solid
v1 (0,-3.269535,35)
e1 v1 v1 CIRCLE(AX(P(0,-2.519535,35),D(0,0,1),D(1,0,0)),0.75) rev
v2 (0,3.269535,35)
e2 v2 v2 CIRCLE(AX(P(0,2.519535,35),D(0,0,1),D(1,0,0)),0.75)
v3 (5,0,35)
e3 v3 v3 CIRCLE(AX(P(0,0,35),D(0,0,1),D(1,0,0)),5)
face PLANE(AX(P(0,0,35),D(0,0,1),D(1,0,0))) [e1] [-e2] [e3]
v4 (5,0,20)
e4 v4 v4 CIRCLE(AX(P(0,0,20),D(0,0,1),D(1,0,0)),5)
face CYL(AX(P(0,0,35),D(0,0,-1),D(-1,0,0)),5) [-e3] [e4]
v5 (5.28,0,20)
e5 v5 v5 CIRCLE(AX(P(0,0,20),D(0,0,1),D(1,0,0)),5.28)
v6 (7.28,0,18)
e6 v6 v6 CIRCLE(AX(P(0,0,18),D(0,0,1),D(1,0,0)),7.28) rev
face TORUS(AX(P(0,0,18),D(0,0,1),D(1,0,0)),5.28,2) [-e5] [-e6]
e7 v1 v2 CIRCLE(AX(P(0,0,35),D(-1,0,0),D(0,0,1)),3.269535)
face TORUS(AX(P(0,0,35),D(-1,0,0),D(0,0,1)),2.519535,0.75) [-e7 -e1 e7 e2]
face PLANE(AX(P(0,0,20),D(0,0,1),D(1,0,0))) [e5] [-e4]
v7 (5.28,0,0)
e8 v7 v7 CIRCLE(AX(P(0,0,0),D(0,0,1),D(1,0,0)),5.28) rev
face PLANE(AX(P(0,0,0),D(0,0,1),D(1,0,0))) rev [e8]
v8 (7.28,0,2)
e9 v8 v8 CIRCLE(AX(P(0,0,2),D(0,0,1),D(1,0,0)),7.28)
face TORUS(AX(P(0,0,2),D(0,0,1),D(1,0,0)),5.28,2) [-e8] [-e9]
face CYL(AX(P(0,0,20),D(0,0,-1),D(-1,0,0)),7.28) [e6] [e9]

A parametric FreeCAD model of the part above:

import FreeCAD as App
import Part
import Sketcher
from FreeCAD import Vector


def edges_at(feature, points):
    """Names of the edges that pass closest to the given points."""
    edges = feature.Shape.Edges
    near = lambda p: min(range(len(edges)), key=lambda i: edges[i].distToShape(Part.Vertex(*p))[0])
    return sorted({f"Edge{near(p) + 1}" for p in points})

doc = App.newDocument("Part")
params = doc.addObject("Spreadsheet::Sheet", "Params")
for row, (alias, value) in enumerate([
    ("sketch1_diameter", "14.56 mm"),
    ("pad1_length", "20 mm"),
    ("fillet_radius", "2 mm"),
    ("sketch2_diameter", "10 mm"),
    ("pad2_length", "15 mm"),
    ("sketch3_diameter", "1.5 mm"),
    ("revolution_angle", "200 deg"),
], start=1):
    params.set(f"A{row}", alias)
    params.set(f"B{row}", "=" + value)
    params.setAlias(f"B{row}", alias)

body = doc.addObject("PartDesign::Body", "Body")

# Sketch on XY plane
sketch1 = body.newObject("Sketcher::SketchObject", "Sketch")
sketch1.AttachmentSupport = (doc.getObject("XY_Plane"), [""])
sketch1.MapMode = "FlatFace"
sketch1.addGeometry(Part.Circle(Vector(0, 0, 0), Vector(0, 0, 1), 7.28), False)
sketch1.addConstraint([
    Sketcher.Constraint("Coincident", 0, 3, -1, 1),
    Sketcher.Constraint("Diameter", 0, 14.56),
])
sketch1.setExpression("Constraints[1]", "Params.sketch1_diameter")
pad1 = body.newObject("PartDesign::Pad", "Pad")
pad1.Profile = sketch1
pad1.setExpression("Length", "Params.pad1_length")
doc.recompute()

fillet = body.newObject("PartDesign::Fillet", "Fillet")
fillet.Base = (pad1, edges_at(pad1, [(-7.28, 0, 0), (-7.28, 0, 20)]))
fillet.setExpression("Radius", "Params.fillet_radius")

# Sketch on XY plane
sketch2 = body.newObject("Sketcher::SketchObject", "Sketch001")
sketch2.AttachmentSupport = (doc.getObject("XY_Plane"), [""])
sketch2.MapMode = "FlatFace"
sketch2.AttachmentOffset = App.Placement(Vector(0, 0, 20), App.Rotation())
sketch2.addGeometry(Part.Circle(Vector(0, 0, 0), Vector(0, 0, 1), 5), False)
sketch2.addConstraint([
    Sketcher.Constraint("Coincident", 0, 3, -1, 1),
    Sketcher.Constraint("Diameter", 0, 10.0),
])
sketch2.setExpression("Constraints[1]", "Params.sketch2_diameter")
pad2 = body.newObject("PartDesign::Pad", "Pad001")
pad2.Profile = sketch2
pad2.setExpression("Length", "Params.pad2_length")

# Sketch on XY plane
sketch3 = body.newObject("Sketcher::SketchObject", "Sketch002")
sketch3.AttachmentSupport = (doc.getObject("XY_Plane"), [""])
sketch3.MapMode = "FlatFace"
sketch3.AttachmentOffset = App.Placement(Vector(0, 0, 35), App.Rotation())
sketch3.addGeometry(Part.Circle(Vector(0, 2.519535, 0), Vector(0, 0, 1), 0.75), False)
sketch3.addConstraint([
    Sketcher.Constraint("PointOnObject", 0, 3, -2),
    Sketcher.Constraint("Diameter", 0, 1.5),
    Sketcher.Constraint("DistanceY", -1, 1, 0, 3, 2.519535),
])
sketch3.setExpression("Constraints[1]", "Params.sketch3_diameter")
revolution = body.newObject("PartDesign::Revolution", "Revolution")
revolution.Profile = sketch3
revolution.ReferenceAxis = (sketch3, ["H_Axis"])
revolution.setExpression("Angle", "Params.revolution_angle")

doc.recompute()
